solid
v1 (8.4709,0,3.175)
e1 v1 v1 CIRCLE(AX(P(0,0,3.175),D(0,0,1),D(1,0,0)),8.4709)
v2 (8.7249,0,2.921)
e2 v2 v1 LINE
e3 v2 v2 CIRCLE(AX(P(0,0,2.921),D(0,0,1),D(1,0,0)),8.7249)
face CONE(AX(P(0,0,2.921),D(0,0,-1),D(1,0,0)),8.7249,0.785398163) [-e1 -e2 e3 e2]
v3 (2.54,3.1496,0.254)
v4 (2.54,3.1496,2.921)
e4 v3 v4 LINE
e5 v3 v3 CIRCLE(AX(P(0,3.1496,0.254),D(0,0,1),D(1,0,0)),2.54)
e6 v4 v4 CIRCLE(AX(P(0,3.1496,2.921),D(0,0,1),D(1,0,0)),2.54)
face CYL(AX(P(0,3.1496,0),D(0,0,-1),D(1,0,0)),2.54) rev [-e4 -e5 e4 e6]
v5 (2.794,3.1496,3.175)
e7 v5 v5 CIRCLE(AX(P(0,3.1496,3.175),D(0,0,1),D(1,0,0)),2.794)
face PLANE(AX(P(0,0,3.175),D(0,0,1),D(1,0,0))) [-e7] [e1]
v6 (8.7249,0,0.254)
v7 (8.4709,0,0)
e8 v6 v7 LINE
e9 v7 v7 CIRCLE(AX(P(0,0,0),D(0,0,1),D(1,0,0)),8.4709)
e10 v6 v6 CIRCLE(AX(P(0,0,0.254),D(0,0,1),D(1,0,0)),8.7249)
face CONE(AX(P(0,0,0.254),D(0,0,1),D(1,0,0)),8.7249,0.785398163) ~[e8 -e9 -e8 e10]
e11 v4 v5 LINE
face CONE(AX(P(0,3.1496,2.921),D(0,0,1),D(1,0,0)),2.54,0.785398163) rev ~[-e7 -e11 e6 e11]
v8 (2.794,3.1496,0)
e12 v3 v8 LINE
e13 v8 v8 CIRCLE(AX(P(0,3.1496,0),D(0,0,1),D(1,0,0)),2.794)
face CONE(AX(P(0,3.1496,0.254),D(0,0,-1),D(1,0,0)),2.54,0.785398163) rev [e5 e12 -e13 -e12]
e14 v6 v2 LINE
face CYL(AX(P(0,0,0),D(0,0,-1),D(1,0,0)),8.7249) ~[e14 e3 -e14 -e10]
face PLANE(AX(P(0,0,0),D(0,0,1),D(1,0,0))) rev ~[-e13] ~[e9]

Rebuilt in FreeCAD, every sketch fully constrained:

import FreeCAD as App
import Part
import Sketcher

V = App.Vector
Q = App.Units.Quantity


def edges_at(feature, points):
    """Names of the edges that pass closest to the given points."""
    edges = feature.Shape.Edges
    near = lambda p: min(range(len(edges)), key=lambda i: edges[i].distToShape(Part.Vertex(*p))[0])
    return sorted({f"Edge{near(p) + 1}" for p in points})

doc = App.newDocument("Part")
body = doc.addObject("PartDesign::Body", "Body")

# Sketch on XY plane
sketch1 = doc.addObject("Sketcher::SketchObject", "Sketch")
body.addObject(sketch1)
sketch1.AttachmentSupport = (doc.XY_Plane, [""])
sketch1.MapMode = "FlatFace"
sketch1.addGeometry(Part.Circle(V(0, 0, 0), V(0, 0, 1), 8.7), False)
sketch1.addGeometry(Part.Circle(V(0, 3.1, 0), V(0, 0, 1), 2.5), False)
sketch1.addConstraint(Sketcher.Constraint("Coincident", 0, 3, -1, 1))
sketch1.addConstraint(Sketcher.Constraint("PointOnObject", 1, 3, -2))
sketch1.addConstraint(Sketcher.Constraint("Diameter", 1, Q("0.2 in")))
sketch1.addConstraint(Sketcher.Constraint("Diameter", 0, Q("0.687 in")))
sketch1.addConstraint(Sketcher.Constraint("DistanceY", -1, 1, 1, 3, Q("0.124 in")))
pad1 = doc.addObject("PartDesign::Pad", "Pad")
body.addObject(pad1)
pad1.Profile = sketch1
pad1.Length = Q("0.125 in")
doc.recompute()

chamfer = doc.addObject("PartDesign::Chamfer", "Chamfer")
body.addObject(chamfer)
chamfer.Base = (pad1, edges_at(pad1, [
    (-8.725, 0, 3.175),
    (-8.725, 0, 0),
    (-2.54, 3.15, 3.175),
    (-2.54, 3.15, 0),
]))
chamfer.Size = Q("0.01 in")

doc.recompute()
